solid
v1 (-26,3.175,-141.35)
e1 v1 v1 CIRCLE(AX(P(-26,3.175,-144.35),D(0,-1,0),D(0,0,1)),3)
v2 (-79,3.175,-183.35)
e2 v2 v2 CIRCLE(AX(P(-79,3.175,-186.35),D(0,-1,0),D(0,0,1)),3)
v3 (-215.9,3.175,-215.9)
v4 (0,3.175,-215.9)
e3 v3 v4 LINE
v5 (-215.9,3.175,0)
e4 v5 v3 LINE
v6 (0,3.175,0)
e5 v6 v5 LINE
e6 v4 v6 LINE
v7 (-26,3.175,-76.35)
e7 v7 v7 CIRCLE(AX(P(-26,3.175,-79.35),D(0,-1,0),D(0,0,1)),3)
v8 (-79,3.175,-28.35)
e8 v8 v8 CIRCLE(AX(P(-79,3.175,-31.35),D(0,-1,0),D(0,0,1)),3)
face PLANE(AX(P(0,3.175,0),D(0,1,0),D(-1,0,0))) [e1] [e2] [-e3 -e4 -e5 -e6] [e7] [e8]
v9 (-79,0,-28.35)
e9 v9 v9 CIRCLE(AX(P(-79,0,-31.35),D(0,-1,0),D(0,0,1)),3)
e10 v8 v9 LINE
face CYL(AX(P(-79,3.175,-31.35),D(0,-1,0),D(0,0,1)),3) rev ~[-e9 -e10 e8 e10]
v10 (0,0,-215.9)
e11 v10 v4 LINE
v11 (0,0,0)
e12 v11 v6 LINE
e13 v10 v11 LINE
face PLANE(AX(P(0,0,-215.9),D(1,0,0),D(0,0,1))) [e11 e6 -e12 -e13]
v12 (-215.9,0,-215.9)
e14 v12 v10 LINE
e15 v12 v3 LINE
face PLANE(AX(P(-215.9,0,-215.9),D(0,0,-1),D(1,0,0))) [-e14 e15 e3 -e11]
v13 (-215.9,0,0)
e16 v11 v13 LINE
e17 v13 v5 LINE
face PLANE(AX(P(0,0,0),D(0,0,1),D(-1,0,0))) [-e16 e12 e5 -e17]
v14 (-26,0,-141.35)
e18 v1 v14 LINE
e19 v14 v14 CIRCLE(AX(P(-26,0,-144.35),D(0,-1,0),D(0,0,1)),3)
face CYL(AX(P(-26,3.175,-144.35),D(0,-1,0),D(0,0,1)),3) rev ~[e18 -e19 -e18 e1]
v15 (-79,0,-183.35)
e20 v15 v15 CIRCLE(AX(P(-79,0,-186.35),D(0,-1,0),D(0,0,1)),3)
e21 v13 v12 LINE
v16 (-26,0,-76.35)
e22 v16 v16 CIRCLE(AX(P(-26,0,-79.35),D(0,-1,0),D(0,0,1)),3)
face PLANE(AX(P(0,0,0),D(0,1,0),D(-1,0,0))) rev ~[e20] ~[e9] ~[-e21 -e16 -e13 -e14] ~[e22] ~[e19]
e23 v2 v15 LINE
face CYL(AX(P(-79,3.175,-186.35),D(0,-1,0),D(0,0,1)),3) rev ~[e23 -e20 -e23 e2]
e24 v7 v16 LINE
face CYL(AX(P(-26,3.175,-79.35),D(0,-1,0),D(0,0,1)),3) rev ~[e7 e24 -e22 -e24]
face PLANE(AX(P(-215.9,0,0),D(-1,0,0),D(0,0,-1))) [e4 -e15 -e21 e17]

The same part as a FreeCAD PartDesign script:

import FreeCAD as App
import Part
import Sketcher

V = App.Vector
Q = App.Units.Quantity


def add_polygon(sketch, points):
    """Adds a closed chain of lines whose ends are joined by coincident constraints."""
    first, n = sketch.GeometryCount, len(points)
    for a, b in zip(points, points[1:] + points[:1]):
        sketch.addGeometry(Part.LineSegment(App.Vector(*a, 0), App.Vector(*b, 0)), False)
    for i in range(n):
        sketch.addConstraint(Sketcher.Constraint("Coincident", first + i, 2, first + (i + 1) % n, 1))

doc = App.newDocument("Part")
body = doc.addObject("PartDesign::Body", "Body")

# Sketch on XZ plane
sketch1 = doc.addObject("Sketcher::SketchObject", "Sketch")
body.addObject(sketch1)
sketch1.AttachmentSupport = (doc.XZ_Plane, [""])
sketch1.MapMode = "FlatFace"
add_polygon(sketch1, [(-215.9, 0), (0, 0), (0, -215.9), (-215.9, -215.9)])  # lines 0-3
sketch1.addConstraint([
    Sketcher.Constraint("Horizontal", 0),
    Sketcher.Constraint("Vertical", 1),
    Sketcher.Constraint("Horizontal", 2),
    Sketcher.Constraint("Vertical", 3),
    Sketcher.Constraint("Coincident", 0, 2, -1, 1),
    Sketcher.Constraint("Equal", 2, 1),
    Sketcher.Constraint("DistanceX", 0, 1, 0, 2, Q("8.5 in")),
])
pad1 = doc.addObject("PartDesign::Pad", "Pad")
body.addObject(pad1)
pad1.Profile = sketch1
pad1.Length = Q("0.125 in")
pad1.Reversed = True

# Sketch on XZ plane
sketch2 = doc.addObject("Sketcher::SketchObject", "Sketch001")
body.addObject(sketch2)
sketch2.AttachmentSupport = (doc.XZ_Plane, [""])
sketch2.MapMode = "FlatFace"
sketch2.AttachmentOffset = App.Placement(V(0, 0, -0.125 * 25.4), App.Rotation())
sketch2.addGeometry([
    Part.Circle(V(-26, -79.35, 0), V(0, 0, 1), 3),
    Part.Circle(V(-79, -31.35, 0), V(0, 0, 1), 3),
    Part.Circle(V(-79, -186.35, 0), V(0, 0, 1), 3),
    Part.Circle(V(-26, -144.35, 0), V(0, 0, 1), 3),
], False)
sketch2.addConstraint([
    Sketcher.Constraint("Equal", 0, 1),
    Sketcher.Constraint("Equal", 1, 2),
    Sketcher.Constraint("Equal", 2, 3),
    Sketcher.Constraint("Vertical", 1, 3, 2, 3),
    Sketcher.Constraint("Vertical", 0, 3, 3, 3),
    Sketcher.Constraint("Diameter", 0, 6.0),
    Sketcher.Constraint("DistanceY", 2, 3, 0, 3, Q("4.2126 in")),
    Sketcher.Constraint("DistanceX", 0, 3, -1, 1, 26.0),
    Sketcher.Constraint("DistanceY", 0, 3, -1, 1, 79.35),
    Sketcher.Constraint("DistanceX", 1, 3, -1, 1, 79.0),
    Sketcher.Constraint("DistanceY", 1, 3, -1, 1, 31.35),
    Sketcher.Constraint("DistanceY", 3, 3, -1, 1, 144.35),
])
doc.recompute()
hole = doc.addObject("PartDesign::Hole", "Hole")
body.addObject(hole)
hole.Profile = sketch2
hole.ThreadType = "None"
hole.Diameter = 6
hole.DepthType = "ThroughAll"
hole.Reversed = True

doc.recompute()
